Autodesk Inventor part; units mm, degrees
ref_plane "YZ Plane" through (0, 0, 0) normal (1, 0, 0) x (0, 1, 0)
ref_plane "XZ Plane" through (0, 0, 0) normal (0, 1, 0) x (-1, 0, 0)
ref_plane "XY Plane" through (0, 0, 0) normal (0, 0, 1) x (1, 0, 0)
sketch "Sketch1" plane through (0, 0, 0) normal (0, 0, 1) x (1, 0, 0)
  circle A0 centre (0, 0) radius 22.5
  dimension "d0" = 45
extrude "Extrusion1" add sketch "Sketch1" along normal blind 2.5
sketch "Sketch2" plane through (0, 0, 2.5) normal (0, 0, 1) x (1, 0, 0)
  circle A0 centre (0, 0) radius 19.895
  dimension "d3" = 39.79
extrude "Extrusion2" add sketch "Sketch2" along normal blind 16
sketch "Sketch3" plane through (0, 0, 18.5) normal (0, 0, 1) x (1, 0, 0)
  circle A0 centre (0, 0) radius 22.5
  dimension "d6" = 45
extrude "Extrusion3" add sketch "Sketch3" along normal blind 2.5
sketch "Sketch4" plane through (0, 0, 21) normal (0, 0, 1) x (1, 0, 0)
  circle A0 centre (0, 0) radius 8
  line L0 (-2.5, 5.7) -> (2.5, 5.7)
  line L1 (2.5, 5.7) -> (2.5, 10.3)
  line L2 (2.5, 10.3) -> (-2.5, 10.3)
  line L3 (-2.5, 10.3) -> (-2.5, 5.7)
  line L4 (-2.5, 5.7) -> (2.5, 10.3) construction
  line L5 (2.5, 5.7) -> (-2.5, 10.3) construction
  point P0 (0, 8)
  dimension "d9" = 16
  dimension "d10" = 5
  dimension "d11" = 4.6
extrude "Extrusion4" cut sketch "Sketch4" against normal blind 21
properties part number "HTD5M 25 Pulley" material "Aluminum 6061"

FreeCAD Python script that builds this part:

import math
import FreeCAD as App
import Part
import Sketcher

doc = App.newDocument("Part")
params = doc.addObject("Spreadsheet::Sheet", "Params")
for row, (alias, value) in enumerate([
    ("sketch1_diameter", "45 mm"),
    ("pad1_length", "2.5 mm"),
    ("sketch2_diameter", "39.79 mm"),
    ("pad2_length", "16 mm"),
    ("sketch3_diameter", "45 mm"),
    ("pad3_length", "2.5 mm"),
    ("sketch4_radius", "8 mm"),
    ("sketch4_width", "5 mm"),
    ("pocket1_length", "21 mm"),
], start=1):
    params.set(f"A{row}", alias)
    params.set(f"B{row}", "=" + value)
    params.setAlias(f"B{row}", alias)

body = doc.addObject("PartDesign::Body", "Body")

sketch1 = body.newObject("Sketcher::SketchObject", "Sketch")
sketch1.AttachmentSupport = (doc.getObject("XY_Plane"), [""])
sketch1.MapMode = "FlatFace"
sketch1.addGeometry(Part.Circle(App.Vector(0, 0, 0), App.Vector(0, 0, 1), 22), False)
sketch1.addConstraint(Sketcher.Constraint("Coincident", 0, 3, -1, 1))
sketch1.addConstraint(Sketcher.Constraint("Diameter", 0, 45.0))
sketch1.setExpression("Constraints[1]", "Params.sketch1_diameter")
pad1 = body.newObject("PartDesign::Pad", "Pad")
pad1.Profile = sketch1
pad1.setExpression("Length", "Params.pad1_length")

sketch2 = body.newObject("Sketcher::SketchObject", "Sketch001")
sketch2.AttachmentSupport = (doc.getObject("XY_Plane"), [""])
sketch2.MapMode = "FlatFace"
sketch2.AttachmentOffset = App.Placement(App.Vector(0, 0, 2.5), App.Rotation())
sketch2.addGeometry(Part.Circle(App.Vector(0, 0, 0), App.Vector(0, 0, 1), 20), False)
sketch2.addConstraint(Sketcher.Constraint("Coincident", 0, 3, -1, 1))
sketch2.addConstraint(Sketcher.Constraint("Diameter", 0, 39.79))
sketch2.setExpression("Constraints[1]", "Params.sketch2_diameter")
pad2 = body.newObject("PartDesign::Pad", "Pad001")
pad2.Profile = sketch2
pad2.setExpression("Length", "Params.pad2_length")

sketch3 = body.newObject("Sketcher::SketchObject", "Sketch002")
sketch3.AttachmentSupport = (doc.getObject("XY_Plane"), [""])
sketch3.MapMode = "FlatFace"
sketch3.AttachmentOffset = App.Placement(App.Vector(0, 0, 18.5), App.Rotation())
sketch3.addGeometry(Part.Circle(App.Vector(0, 0, 0), App.Vector(0, 0, 1), 22), False)
sketch3.addConstraint(Sketcher.Constraint("Coincident", 0, 3, -1, 1))
sketch3.addConstraint(Sketcher.Constraint("Diameter", 0, 45.0))
sketch3.setExpression("Constraints[1]", "Params.sketch3_diameter")
pad3 = body.newObject("PartDesign::Pad", "Pad002")
pad3.Profile = sketch3
pad3.setExpression("Length", "Params.pad3_length")

sketch4 = body.newObject("Sketcher::SketchObject", "Sketch003")
sketch4.AttachmentSupport = (doc.getObject("XY_Plane"), [""])
sketch4.MapMode = "FlatFace"
sketch4.AttachmentOffset = App.Placement(App.Vector(0, 0, 21), App.Rotation())
sketch4.addGeometry(Part.ArcOfCircle(Part.Circle(App.Vector(0, 0, 0), App.Vector(0, 0, 1), 8), math.radians(108), math.radians(432)), False)
sketch4.addGeometry(Part.LineSegment(App.Vector(2.5, 7.6, 0), App.Vector(2.5, 10.3, 0)), False)
sketch4.addGeometry(Part.LineSegment(App.Vector(2.5, 10.3, 0), App.Vector(-2.5, 10.3, 0)), False)
sketch4.addGeometry(Part.LineSegment(App.Vector(-2.5, 10.3, 0), App.Vector(-2.5, 7.6, 0)), False)
sketch4.addConstraint(Sketcher.Constraint("Coincident", 0, 2, 1, 1))
sketch4.addConstraint(Sketcher.Constraint("Coincident", 1, 2, 2, 1))
sketch4.addConstraint(Sketcher.Constraint("Coincident", 2, 2, 3, 1))
sketch4.addConstraint(Sketcher.Constraint("Coincident", 3, 2, 0, 1))
sketch4.addConstraint(Sketcher.Constraint("Vertical", 1))
sketch4.addConstraint(Sketcher.Constraint("Horizontal", 2))
sketch4.addConstraint(Sketcher.Constraint("Vertical", 3))
sketch4.addConstraint(Sketcher.Constraint("Coincident", 0, 3, -1, 1))
sketch4.addConstraint(Sketcher.Constraint("Horizontal", 0, 2, 3, 2))
sketch4.addConstraint(Sketcher.Constraint("Radius", 0, 8.0))
sketch4.addConstraint(Sketcher.Constraint("DistanceX", 2, 2, 2, 1, 5.0))
sketch4.addConstraint(Sketcher.Constraint("DistanceY", -1, 1, 1, 2, 10.3))
sketch4.setExpression("Constraints[9]", "Params.sketch4_radius")
sketch4.setExpression("Constraints[10]", "Params.sketch4_width")
pocket1 = body.newObject("PartDesign::Pocket", "Pocket")
pocket1.Profile = sketch4
pocket1.setExpression("Length", "Params.pocket1_length")

doc.recompute()
